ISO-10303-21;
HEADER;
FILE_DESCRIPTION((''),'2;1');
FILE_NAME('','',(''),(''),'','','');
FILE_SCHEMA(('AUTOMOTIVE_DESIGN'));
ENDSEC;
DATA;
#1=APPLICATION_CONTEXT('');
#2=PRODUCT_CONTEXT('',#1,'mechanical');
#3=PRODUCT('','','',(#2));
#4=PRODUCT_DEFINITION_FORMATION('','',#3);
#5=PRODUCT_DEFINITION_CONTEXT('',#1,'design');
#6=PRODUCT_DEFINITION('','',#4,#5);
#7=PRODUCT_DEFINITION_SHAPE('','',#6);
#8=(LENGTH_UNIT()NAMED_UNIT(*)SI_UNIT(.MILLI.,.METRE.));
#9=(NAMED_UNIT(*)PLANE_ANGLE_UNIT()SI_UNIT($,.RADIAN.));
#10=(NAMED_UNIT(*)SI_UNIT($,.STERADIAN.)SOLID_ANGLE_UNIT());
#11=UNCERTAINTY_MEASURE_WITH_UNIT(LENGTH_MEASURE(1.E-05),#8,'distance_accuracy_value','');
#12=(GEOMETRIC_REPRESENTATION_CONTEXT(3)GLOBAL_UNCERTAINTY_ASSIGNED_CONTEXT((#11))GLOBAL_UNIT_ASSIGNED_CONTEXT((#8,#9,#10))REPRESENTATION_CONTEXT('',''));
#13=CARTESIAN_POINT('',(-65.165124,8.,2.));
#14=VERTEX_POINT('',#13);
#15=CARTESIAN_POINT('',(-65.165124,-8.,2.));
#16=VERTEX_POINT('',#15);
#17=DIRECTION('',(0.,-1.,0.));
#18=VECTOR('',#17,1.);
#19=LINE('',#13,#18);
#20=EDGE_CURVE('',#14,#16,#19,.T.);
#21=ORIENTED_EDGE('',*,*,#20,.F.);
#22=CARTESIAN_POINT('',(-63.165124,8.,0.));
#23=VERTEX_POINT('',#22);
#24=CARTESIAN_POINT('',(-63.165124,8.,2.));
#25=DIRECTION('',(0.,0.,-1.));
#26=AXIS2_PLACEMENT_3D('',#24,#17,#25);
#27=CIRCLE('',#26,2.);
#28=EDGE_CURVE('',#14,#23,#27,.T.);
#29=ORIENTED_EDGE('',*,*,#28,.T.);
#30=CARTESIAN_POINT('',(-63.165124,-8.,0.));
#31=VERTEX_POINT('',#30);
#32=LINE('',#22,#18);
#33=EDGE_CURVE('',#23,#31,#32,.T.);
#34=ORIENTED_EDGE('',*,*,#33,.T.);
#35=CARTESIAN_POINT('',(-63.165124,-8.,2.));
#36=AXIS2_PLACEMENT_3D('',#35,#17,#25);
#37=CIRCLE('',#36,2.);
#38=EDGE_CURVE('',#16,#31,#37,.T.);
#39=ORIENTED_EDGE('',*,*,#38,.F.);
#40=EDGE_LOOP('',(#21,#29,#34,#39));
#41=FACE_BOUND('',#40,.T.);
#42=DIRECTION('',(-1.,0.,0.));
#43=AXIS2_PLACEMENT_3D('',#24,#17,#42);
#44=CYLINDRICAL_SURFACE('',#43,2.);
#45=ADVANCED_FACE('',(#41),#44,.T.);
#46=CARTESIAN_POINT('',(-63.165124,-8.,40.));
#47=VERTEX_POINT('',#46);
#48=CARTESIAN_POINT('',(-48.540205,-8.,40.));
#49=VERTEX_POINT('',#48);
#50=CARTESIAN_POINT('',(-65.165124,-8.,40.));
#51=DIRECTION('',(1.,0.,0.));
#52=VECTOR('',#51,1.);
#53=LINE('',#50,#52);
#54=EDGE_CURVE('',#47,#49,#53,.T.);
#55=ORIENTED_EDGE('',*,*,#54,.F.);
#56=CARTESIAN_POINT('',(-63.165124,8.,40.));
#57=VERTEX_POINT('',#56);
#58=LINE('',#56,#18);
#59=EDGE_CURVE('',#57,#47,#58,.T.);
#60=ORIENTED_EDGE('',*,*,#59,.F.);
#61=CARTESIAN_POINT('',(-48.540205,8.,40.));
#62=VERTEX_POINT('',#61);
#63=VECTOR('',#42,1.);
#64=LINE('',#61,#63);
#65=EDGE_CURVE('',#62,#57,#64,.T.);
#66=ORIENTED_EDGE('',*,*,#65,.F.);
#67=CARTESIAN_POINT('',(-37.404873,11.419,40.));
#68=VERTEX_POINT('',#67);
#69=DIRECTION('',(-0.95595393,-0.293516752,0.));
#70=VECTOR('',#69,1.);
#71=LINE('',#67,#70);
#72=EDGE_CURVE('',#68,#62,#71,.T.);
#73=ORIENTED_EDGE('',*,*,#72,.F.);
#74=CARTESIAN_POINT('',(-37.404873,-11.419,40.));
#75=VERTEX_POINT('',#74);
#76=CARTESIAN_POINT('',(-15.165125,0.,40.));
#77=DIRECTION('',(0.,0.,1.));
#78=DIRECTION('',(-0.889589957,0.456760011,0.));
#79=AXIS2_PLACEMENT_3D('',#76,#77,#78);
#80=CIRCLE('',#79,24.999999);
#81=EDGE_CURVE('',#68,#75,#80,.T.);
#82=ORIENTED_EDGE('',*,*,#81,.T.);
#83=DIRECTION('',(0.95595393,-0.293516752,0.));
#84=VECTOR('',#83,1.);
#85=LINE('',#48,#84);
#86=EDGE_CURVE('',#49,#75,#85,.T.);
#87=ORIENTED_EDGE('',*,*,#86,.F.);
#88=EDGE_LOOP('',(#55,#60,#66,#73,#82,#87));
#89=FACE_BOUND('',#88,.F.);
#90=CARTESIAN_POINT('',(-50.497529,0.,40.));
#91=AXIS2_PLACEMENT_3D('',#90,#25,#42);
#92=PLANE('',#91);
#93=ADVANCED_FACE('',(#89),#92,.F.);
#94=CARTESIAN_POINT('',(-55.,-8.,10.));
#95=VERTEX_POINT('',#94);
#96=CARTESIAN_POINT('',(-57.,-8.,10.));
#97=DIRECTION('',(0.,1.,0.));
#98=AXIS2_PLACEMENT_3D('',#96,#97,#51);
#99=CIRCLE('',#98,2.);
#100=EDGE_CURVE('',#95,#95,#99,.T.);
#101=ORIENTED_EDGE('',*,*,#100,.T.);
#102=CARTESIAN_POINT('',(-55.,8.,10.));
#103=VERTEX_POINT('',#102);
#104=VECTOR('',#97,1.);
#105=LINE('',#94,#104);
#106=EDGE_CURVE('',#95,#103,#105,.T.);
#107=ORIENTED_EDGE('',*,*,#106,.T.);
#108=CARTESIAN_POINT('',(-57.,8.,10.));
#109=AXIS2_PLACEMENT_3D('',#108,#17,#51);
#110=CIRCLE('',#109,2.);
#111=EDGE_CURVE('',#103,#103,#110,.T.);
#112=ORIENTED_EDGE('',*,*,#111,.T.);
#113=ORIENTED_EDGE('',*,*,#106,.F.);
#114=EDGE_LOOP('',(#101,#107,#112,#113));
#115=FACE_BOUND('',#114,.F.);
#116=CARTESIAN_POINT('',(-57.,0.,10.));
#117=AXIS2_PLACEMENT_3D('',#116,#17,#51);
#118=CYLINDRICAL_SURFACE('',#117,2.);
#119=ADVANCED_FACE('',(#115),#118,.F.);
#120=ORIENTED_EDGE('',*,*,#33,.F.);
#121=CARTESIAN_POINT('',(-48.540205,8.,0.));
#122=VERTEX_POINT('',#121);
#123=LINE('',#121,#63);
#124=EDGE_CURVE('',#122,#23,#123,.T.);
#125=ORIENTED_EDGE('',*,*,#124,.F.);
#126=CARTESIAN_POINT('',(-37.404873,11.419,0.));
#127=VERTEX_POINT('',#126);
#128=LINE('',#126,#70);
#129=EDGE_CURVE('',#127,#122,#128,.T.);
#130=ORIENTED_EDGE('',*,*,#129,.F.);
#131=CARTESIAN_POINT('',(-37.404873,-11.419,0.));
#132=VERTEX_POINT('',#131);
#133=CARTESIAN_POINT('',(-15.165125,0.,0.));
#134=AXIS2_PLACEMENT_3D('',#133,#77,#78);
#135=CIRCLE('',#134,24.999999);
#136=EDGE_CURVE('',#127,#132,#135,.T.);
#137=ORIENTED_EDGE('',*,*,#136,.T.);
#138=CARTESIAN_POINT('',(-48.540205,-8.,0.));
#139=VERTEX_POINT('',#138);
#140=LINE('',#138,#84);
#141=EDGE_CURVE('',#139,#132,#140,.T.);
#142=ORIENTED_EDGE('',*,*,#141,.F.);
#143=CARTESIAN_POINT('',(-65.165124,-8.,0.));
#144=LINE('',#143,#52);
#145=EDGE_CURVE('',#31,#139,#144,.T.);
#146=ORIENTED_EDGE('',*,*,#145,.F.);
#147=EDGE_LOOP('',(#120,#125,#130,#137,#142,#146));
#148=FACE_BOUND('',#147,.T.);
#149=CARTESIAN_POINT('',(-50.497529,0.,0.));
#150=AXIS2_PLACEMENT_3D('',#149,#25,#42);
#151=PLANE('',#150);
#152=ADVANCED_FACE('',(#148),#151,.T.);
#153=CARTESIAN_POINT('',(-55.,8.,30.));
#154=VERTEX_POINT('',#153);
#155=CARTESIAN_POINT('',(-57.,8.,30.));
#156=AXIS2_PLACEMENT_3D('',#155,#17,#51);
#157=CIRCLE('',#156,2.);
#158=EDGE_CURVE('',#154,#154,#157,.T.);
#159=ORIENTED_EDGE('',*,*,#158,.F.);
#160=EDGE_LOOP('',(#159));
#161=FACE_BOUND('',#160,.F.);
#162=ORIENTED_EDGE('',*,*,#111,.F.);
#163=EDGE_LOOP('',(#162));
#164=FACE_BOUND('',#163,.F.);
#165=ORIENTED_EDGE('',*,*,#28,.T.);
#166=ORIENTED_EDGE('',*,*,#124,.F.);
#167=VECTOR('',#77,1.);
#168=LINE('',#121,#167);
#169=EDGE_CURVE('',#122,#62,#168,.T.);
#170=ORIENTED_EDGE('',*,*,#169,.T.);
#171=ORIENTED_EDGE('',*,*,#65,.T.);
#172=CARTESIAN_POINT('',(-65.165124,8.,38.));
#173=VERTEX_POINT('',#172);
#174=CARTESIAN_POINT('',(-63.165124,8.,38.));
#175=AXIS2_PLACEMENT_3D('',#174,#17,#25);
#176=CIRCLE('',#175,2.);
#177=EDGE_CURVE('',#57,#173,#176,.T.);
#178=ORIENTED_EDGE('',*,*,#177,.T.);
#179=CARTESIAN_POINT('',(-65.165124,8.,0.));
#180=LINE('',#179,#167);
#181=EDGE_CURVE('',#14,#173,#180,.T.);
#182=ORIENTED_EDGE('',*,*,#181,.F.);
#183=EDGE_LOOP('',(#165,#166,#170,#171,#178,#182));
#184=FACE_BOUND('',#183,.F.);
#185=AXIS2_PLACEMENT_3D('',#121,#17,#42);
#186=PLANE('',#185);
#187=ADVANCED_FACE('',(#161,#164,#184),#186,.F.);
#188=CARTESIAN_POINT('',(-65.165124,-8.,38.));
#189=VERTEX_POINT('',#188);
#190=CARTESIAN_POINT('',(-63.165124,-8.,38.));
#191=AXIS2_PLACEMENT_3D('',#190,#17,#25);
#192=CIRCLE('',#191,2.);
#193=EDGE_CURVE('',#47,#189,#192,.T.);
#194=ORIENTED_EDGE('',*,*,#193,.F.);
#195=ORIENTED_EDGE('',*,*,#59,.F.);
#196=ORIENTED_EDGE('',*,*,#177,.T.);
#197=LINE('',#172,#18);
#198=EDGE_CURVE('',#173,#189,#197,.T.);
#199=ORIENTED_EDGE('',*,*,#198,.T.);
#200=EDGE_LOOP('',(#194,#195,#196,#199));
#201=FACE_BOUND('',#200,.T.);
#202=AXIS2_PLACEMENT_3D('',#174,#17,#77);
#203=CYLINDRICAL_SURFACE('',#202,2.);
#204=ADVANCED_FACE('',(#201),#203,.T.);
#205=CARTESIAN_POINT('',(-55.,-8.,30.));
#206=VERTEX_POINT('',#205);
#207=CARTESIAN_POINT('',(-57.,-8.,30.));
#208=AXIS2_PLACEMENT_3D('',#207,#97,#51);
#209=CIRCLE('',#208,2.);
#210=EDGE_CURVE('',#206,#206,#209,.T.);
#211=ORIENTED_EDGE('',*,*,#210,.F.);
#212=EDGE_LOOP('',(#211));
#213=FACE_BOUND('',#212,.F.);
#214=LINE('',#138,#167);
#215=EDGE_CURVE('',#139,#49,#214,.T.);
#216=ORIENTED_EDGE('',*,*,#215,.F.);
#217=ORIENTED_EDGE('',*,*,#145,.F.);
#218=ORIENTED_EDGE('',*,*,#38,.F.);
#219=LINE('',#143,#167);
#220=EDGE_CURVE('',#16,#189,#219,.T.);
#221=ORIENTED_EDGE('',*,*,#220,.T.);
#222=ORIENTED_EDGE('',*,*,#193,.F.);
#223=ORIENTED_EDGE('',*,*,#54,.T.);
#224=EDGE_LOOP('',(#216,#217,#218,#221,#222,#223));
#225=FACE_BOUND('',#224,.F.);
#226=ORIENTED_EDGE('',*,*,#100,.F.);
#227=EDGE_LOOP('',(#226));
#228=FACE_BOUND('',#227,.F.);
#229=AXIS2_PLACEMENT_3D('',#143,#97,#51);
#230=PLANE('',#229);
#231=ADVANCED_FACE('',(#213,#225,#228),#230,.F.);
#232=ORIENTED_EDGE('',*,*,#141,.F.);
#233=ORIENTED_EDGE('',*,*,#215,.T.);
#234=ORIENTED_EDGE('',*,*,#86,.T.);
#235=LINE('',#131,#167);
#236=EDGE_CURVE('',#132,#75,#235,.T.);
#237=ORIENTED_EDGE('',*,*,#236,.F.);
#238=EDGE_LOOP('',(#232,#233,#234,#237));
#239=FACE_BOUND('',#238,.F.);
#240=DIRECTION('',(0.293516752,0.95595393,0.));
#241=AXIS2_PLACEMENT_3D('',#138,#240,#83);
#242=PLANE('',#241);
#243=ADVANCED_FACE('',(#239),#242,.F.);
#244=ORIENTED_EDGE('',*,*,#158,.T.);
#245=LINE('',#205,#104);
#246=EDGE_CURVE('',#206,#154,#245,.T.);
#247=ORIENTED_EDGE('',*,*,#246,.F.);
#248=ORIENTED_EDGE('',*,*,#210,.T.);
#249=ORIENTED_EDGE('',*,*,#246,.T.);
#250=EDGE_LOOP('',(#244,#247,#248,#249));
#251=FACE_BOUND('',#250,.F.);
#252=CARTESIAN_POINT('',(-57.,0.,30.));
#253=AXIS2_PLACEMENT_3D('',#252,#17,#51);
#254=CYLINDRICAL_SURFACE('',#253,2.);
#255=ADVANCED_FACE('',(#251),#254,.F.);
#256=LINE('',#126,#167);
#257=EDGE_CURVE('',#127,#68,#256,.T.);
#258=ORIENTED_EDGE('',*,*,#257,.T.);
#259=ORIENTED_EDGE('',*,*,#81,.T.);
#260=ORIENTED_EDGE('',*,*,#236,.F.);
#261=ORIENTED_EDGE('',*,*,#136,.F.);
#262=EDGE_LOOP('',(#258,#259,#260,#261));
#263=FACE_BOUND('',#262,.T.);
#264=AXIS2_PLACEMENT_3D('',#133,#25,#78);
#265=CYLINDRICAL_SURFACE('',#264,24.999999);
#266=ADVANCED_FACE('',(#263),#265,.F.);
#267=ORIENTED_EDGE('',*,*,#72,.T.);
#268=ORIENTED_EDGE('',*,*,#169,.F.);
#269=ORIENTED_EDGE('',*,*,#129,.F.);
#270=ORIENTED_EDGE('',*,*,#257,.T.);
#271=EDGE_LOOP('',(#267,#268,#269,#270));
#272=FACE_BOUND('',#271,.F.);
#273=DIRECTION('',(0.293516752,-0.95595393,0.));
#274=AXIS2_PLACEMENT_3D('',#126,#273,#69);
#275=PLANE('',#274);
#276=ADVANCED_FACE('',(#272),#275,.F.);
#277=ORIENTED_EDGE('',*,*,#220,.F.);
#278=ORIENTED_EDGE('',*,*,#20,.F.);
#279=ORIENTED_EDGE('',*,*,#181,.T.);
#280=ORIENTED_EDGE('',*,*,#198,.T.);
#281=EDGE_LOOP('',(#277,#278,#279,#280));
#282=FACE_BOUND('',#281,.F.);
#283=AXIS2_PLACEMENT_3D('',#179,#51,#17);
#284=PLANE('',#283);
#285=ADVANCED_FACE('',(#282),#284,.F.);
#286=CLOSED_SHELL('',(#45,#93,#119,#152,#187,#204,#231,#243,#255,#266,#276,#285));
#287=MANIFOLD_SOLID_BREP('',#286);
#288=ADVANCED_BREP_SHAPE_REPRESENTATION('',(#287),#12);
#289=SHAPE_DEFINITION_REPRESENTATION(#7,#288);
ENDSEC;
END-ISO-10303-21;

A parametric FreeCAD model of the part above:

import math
import FreeCAD as App
import Part
import Sketcher

V = App.Vector
Q = App.Units.Quantity


def edges_at(feature, points):
    """Names of the edges that pass closest to the given points."""
    edges = feature.Shape.Edges
    near = lambda p: min(range(len(edges)), key=lambda i: edges[i].distToShape(Part.Vertex(*p))[0])
    return sorted({f"Edge{near(p) + 1}" for p in points})

doc = App.newDocument("Part")
body = doc.addObject("PartDesign::Body", "Body")

# Sketch on XY plane
sketch1 = body.newObject("Sketcher::SketchObject", "Sketch")
sketch1.AttachmentSupport = (doc.getObject("XY_Plane"), [""])
sketch1.MapMode = "FlatFace"
sketch1.addGeometry(Part.ArcOfCircle(Part.Circle(V(15, 0, 0), V(0, 0, 1), 25), math.radians(153), math.radians(207)), False)
sketch1.addGeometry(Part.LineSegment(V(-7, 11, 0), V(-19, 8, 0)), False)
sketch1.addGeometry(Part.LineSegment(V(-19, 8, 0), V(-35, 8, 0)), False)
sketch1.addGeometry(Part.LineSegment(V(-35, 8, 0), V(-35, -8, 0)), False)
sketch1.addGeometry(Part.LineSegment(V(-35, -8, 0), V(-19, -8, 0)), False)
sketch1.addGeometry(Part.LineSegment(V(-19, -8, 0), V(-7, -11, 0)), False)
sketch1.addConstraint(Sketcher.Constraint("Coincident", 0, 1, 1, 1))
sketch1.addConstraint(Sketcher.Constraint("Coincident", 1, 2, 2, 1))
sketch1.addConstraint(Sketcher.Constraint("Coincident", 2, 2, 3, 1))
sketch1.addConstraint(Sketcher.Constraint("Coincident", 3, 2, 4, 1))
sketch1.addConstraint(Sketcher.Constraint("Coincident", 4, 2, 5, 1))
sketch1.addConstraint(Sketcher.Constraint("Coincident", 5, 2, 0, 2))
sketch1.addConstraint(Sketcher.Constraint("Horizontal", 2))
sketch1.addConstraint(Sketcher.Constraint("Vertical", 3))
sketch1.addConstraint(Sketcher.Constraint("Horizontal", 4))
sketch1.addConstraint(Sketcher.Constraint("Symmetric", 1, 2, 4, 2, -1))
sketch1.addConstraint(Sketcher.Constraint("Symmetric", 0, 1, 5, 2, -1))
sketch1.addConstraint(Sketcher.Constraint("Radius", 0, Q("24.999999 mm")))
sketch1.addConstraint(Sketcher.Constraint("DistanceY", 3, 2, 3, 1, Q("16 mm")))
sketch1.addConstraint(Sketcher.Constraint("DistanceX", 2, 2, 0, 3, Q("49.999999 mm")))
sketch1.addConstraint(Sketcher.Constraint("DistanceY", -1, 1, 0, 1, Q("11.419 mm")))
sketch1.addConstraint(Sketcher.Constraint("Distance", 1, Q("11.648398 mm")))
sketch1.addConstraint(Sketcher.Constraint("DistanceX", -1, 1, 0, 3, Q("14.834875 mm")))
pad1 = body.newObject("PartDesign::Pad", "Pad")
pad1.Profile = sketch1
pad1.Length = 40

# Sketch on XZ plane
sketch2 = body.newObject("Sketcher::SketchObject", "Sketch001")
sketch2.AttachmentSupport = (doc.getObject("XZ_Plane"), [""])
sketch2.MapMode = "FlatFace"
sketch2.addGeometry(Part.Circle(V(-27, 30, 0), V(0, 0, 1), 2), False)
sketch2.addGeometry(Part.Circle(V(-27, 10, 0), V(0, 0, 1), 2), False)
sketch2.addConstraint(Sketcher.Constraint("Equal", 0, 1))
sketch2.addConstraint(Sketcher.Constraint("Vertical", 0, 3, 1, 3))
sketch2.addConstraint(Sketcher.Constraint("Diameter", 0, Q("4 mm")))
sketch2.addConstraint(Sketcher.Constraint("DistanceX", 0, 3, -1, 1, Q("27 mm")))
sketch2.addConstraint(Sketcher.Constraint("DistanceY", -1, 1, 0, 3, Q("30 mm")))
sketch2.addConstraint(Sketcher.Constraint("DistanceY", -1, 1, 1, 3, Q("10 mm")))
pocket1 = body.newObject("PartDesign::Pocket", "Pocket")
pocket1.Profile = sketch2
pocket1.Type = "ThroughAll"
pocket1.Midplane = True
doc.recompute()

fillet = body.newObject("PartDesign::Fillet", "Fillet")
fillet.Base = (pocket1, edges_at(pocket1, [(-35.165, 0, 40), (-35.165, 0, 0)]))
fillet.Radius = 2
body2 = doc.addObject("PartDesign::Body", "Body001")
doc.recompute()

body.Placement = App.Placement(V(-30, 0, 0), App.Rotation(V(0, 0, 1), 0))
boolean = body2.newObject("PartDesign::Boolean", "Boolean")
boolean.Type = "Fuse"
boolean.addObjects([body])

doc.recompute()
